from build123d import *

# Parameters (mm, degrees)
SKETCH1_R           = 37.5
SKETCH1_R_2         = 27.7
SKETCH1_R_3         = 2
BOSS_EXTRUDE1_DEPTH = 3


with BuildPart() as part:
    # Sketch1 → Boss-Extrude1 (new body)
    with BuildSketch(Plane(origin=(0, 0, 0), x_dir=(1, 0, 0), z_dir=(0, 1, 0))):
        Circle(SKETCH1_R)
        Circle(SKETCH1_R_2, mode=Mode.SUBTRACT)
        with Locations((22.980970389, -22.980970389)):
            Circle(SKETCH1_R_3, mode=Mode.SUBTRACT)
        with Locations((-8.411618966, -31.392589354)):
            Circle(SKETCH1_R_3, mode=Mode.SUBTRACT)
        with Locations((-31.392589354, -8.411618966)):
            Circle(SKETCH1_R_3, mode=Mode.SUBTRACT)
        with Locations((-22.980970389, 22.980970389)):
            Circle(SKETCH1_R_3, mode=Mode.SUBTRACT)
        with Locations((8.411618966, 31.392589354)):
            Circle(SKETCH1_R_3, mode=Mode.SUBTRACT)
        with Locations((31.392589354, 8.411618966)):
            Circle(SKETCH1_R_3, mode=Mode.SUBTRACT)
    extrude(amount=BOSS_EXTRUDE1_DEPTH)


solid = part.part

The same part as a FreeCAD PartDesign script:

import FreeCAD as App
import Part
import Sketcher

V = App.Vector

doc = App.newDocument("Part")
body = doc.addObject("PartDesign::Body", "Body")

# Sketch on XZ plane
sketch1 = body.newObject("Sketcher::SketchObject", "Sketch")
sketch1.AttachmentSupport = (doc.getObject("XZ_Plane"), [""])
sketch1.MapMode = "FlatFace"
sketch1.addGeometry([
    Part.Circle(V(0, 0, 0), V(0, 0, 1), 37.5),  # 0
    Part.Circle(V(-8.4, 31.4, 0), V(0, 0, 1), 2),  # 1
    Part.Circle(V(-31.4, 8.4, 0), V(0, 0, 1), 2),  # 2
    Part.Circle(V(23, 23, 0), V(0, 0, 1), 2),  # 3
    Part.Circle(V(-23, -23, 0), V(0, 0, 1), 2),  # 4
    Part.Circle(V(0, 0, 0), V(0, 0, 1), 27.7),  # 5
    Part.Circle(V(31.4, -8.4, 0), V(0, 0, 1), 2),  # 6
    Part.Circle(V(8.4, -31.4, 0), V(0, 0, 1), 2),  # 7
], False)
sketch1.addConstraint([
    Sketcher.Constraint("Coincident", 0, 3, -1, 1),
    Sketcher.Constraint("Coincident", 5, 3, -1, 1),
    Sketcher.Constraint("Equal", 1, 2),
    Sketcher.Constraint("Equal", 2, 3),
    Sketcher.Constraint("Equal", 3, 4),
    Sketcher.Constraint("Equal", 4, 6),
    Sketcher.Constraint("Equal", 6, 7),
    Sketcher.Constraint("Symmetric", 3, 3, 4, 3, -1, 1),
    Sketcher.Constraint("Symmetric", 2, 3, 6, 3, -1, 1),
    Sketcher.Constraint("Symmetric", 1, 3, 7, 3, -1, 1),
    Sketcher.Constraint("Diameter", 0, 75.0),
    Sketcher.Constraint("Diameter", 1, 4.0),
    Sketcher.Constraint("Diameter", 5, 55.4),
    Sketcher.Constraint("DistanceX", 1, 3, -1, 1, 8.411619),
    Sketcher.Constraint("DistanceY", -1, 1, 1, 3, 31.392589),
    Sketcher.Constraint("DistanceX", 2, 3, -1, 1, 31.392589),
    Sketcher.Constraint("DistanceY", -1, 1, 2, 3, 8.411619),
    Sketcher.Constraint("DistanceX", -1, 1, 3, 3, 22.98097),
    Sketcher.Constraint("DistanceY", -1, 1, 3, 3, 22.98097),
])
pad1 = body.newObject("PartDesign::Pad", "Pad")
pad1.Profile = sketch1
pad1.Length = 3
pad1.Reversed = True

doc.recompute()
